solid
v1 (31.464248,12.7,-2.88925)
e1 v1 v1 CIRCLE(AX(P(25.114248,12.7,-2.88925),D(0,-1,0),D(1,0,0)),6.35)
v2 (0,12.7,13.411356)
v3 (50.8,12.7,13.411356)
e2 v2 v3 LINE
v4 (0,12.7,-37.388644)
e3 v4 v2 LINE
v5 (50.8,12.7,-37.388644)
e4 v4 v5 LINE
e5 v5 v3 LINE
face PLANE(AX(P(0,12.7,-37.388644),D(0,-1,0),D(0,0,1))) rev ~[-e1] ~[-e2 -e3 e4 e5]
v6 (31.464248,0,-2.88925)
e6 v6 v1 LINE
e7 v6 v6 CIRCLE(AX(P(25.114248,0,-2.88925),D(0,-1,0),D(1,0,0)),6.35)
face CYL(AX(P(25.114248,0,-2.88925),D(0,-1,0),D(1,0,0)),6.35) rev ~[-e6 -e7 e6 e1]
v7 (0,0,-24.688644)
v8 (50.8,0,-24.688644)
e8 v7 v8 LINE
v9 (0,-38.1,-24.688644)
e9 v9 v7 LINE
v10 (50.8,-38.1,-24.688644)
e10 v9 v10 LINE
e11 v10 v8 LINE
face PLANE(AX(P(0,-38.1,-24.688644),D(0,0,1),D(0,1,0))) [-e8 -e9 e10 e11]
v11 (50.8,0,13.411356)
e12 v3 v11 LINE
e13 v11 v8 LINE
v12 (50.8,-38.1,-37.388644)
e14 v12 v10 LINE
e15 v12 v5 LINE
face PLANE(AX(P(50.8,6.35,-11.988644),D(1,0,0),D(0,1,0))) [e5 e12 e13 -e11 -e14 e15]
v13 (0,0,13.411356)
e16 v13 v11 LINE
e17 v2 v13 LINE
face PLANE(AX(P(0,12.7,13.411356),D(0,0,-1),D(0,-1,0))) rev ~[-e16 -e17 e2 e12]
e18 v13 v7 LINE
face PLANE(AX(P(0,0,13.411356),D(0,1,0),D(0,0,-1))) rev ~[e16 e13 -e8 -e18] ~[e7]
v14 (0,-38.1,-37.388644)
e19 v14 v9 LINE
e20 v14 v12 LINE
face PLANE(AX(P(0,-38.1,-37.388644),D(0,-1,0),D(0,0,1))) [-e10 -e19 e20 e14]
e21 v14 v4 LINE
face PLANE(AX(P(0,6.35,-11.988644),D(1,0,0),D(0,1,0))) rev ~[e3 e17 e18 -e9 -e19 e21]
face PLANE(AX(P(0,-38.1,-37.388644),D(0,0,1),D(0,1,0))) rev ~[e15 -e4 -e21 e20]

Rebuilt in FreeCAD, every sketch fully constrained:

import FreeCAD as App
import Part
import Sketcher
from FreeCAD import Vector
Q = App.Units.Quantity


def add_polygon(sketch, points):
    """Adds a closed chain of lines whose ends are joined by coincident constraints."""
    first, n = sketch.GeometryCount, len(points)
    for a, b in zip(points, points[1:] + points[:1]):
        sketch.addGeometry(Part.LineSegment(App.Vector(*a, 0), App.Vector(*b, 0)), False)
    for i in range(n):
        sketch.addConstraint(Sketcher.Constraint("Coincident", first + i, 2, first + (i + 1) % n, 1))

doc = App.newDocument("Part")
params = doc.addObject("Spreadsheet::Sheet", "Params")
for row, (alias, value) in enumerate([
    ("sketch1_width", "2 in"),
    ("sketch1_width2", "0.5 in"),
    ("pad1_length", "2 in"),
    ("sketch2_diameter", "0.5 in"),
    ("pocket1_length", "1 in"),
], start=1):
    params.set(f"A{row}", alias)
    params.set(f"B{row}", "=" + value)
    params.setAlias(f"B{row}", alias)

body = doc.addObject("PartDesign::Body", "Body")

sketch1 = doc.addObject("Sketcher::SketchObject", "Sketch")
body.addObject(sketch1)
sketch1.AttachmentSupport = (doc.YZ_Plane, [""])
sketch1.MapMode = "FlatFace"
add_polygon(sketch1, [(12.7, 13.411356), (0, 13.411356), (0, -24.688644), (-38.1, -24.688644), (-38.1, -37.388644), (12.7, -37.388644)])
sketch1.addConstraint([
    Sketcher.Constraint("Horizontal", 0),
    Sketcher.Constraint("Vertical", 1),
    Sketcher.Constraint("Horizontal", 2),
    Sketcher.Constraint("Vertical", 3),
    Sketcher.Constraint("Horizontal", 4),
    Sketcher.Constraint("Vertical", 5),
    Sketcher.Constraint("PointOnObject", 0, 2, -2),
    Sketcher.Constraint("Equal", 2, 1),
    Sketcher.Constraint("Equal", 0, 3),
    Sketcher.Constraint("DistanceX", 4, 1, 4, 2, Q("2 in")),
    Sketcher.Constraint("DistanceX", 0, 2, 0, 1, Q("0.5 in")),
    Sketcher.Constraint("DistanceY", -1, 1, 0, 2, 13.411356),
])
sketch1.setExpression("Constraints[15]", "Params.sketch1_width")
sketch1.setExpression("Constraints[16]", "Params.sketch1_width2")
pad1 = doc.addObject("PartDesign::Pad", "Pad")
body.addObject(pad1)
pad1.Profile = sketch1
pad1.setExpression("Length", "Params.pad1_length")

sketch2 = doc.addObject("Sketcher::SketchObject", "Sketch001")
body.addObject(sketch2)
sketch2.AttachmentSupport = (doc.XZ_Plane, [""])
sketch2.MapMode = "FlatFace"
sketch2.addGeometry(Part.Circle(Vector(25.114248, -2.88925, 0), Vector(0, 0, 1), 6.35), False)
sketch2.addConstraint([
    Sketcher.Constraint("Diameter", 0, Q("0.5 in")),
    Sketcher.Constraint("DistanceX", -1, 1, 0, 3, 25.114248),
    Sketcher.Constraint("DistanceY", 0, 3, -1, 1, 2.88925),
])
sketch2.setExpression("Constraints[0]", "Params.sketch2_diameter")
pocket1 = doc.addObject("PartDesign::Pocket", "Pocket")
body.addObject(pocket1)
pocket1.Profile = sketch2
pocket1.setExpression("Length", "Params.pocket1_length")

doc.recompute()
